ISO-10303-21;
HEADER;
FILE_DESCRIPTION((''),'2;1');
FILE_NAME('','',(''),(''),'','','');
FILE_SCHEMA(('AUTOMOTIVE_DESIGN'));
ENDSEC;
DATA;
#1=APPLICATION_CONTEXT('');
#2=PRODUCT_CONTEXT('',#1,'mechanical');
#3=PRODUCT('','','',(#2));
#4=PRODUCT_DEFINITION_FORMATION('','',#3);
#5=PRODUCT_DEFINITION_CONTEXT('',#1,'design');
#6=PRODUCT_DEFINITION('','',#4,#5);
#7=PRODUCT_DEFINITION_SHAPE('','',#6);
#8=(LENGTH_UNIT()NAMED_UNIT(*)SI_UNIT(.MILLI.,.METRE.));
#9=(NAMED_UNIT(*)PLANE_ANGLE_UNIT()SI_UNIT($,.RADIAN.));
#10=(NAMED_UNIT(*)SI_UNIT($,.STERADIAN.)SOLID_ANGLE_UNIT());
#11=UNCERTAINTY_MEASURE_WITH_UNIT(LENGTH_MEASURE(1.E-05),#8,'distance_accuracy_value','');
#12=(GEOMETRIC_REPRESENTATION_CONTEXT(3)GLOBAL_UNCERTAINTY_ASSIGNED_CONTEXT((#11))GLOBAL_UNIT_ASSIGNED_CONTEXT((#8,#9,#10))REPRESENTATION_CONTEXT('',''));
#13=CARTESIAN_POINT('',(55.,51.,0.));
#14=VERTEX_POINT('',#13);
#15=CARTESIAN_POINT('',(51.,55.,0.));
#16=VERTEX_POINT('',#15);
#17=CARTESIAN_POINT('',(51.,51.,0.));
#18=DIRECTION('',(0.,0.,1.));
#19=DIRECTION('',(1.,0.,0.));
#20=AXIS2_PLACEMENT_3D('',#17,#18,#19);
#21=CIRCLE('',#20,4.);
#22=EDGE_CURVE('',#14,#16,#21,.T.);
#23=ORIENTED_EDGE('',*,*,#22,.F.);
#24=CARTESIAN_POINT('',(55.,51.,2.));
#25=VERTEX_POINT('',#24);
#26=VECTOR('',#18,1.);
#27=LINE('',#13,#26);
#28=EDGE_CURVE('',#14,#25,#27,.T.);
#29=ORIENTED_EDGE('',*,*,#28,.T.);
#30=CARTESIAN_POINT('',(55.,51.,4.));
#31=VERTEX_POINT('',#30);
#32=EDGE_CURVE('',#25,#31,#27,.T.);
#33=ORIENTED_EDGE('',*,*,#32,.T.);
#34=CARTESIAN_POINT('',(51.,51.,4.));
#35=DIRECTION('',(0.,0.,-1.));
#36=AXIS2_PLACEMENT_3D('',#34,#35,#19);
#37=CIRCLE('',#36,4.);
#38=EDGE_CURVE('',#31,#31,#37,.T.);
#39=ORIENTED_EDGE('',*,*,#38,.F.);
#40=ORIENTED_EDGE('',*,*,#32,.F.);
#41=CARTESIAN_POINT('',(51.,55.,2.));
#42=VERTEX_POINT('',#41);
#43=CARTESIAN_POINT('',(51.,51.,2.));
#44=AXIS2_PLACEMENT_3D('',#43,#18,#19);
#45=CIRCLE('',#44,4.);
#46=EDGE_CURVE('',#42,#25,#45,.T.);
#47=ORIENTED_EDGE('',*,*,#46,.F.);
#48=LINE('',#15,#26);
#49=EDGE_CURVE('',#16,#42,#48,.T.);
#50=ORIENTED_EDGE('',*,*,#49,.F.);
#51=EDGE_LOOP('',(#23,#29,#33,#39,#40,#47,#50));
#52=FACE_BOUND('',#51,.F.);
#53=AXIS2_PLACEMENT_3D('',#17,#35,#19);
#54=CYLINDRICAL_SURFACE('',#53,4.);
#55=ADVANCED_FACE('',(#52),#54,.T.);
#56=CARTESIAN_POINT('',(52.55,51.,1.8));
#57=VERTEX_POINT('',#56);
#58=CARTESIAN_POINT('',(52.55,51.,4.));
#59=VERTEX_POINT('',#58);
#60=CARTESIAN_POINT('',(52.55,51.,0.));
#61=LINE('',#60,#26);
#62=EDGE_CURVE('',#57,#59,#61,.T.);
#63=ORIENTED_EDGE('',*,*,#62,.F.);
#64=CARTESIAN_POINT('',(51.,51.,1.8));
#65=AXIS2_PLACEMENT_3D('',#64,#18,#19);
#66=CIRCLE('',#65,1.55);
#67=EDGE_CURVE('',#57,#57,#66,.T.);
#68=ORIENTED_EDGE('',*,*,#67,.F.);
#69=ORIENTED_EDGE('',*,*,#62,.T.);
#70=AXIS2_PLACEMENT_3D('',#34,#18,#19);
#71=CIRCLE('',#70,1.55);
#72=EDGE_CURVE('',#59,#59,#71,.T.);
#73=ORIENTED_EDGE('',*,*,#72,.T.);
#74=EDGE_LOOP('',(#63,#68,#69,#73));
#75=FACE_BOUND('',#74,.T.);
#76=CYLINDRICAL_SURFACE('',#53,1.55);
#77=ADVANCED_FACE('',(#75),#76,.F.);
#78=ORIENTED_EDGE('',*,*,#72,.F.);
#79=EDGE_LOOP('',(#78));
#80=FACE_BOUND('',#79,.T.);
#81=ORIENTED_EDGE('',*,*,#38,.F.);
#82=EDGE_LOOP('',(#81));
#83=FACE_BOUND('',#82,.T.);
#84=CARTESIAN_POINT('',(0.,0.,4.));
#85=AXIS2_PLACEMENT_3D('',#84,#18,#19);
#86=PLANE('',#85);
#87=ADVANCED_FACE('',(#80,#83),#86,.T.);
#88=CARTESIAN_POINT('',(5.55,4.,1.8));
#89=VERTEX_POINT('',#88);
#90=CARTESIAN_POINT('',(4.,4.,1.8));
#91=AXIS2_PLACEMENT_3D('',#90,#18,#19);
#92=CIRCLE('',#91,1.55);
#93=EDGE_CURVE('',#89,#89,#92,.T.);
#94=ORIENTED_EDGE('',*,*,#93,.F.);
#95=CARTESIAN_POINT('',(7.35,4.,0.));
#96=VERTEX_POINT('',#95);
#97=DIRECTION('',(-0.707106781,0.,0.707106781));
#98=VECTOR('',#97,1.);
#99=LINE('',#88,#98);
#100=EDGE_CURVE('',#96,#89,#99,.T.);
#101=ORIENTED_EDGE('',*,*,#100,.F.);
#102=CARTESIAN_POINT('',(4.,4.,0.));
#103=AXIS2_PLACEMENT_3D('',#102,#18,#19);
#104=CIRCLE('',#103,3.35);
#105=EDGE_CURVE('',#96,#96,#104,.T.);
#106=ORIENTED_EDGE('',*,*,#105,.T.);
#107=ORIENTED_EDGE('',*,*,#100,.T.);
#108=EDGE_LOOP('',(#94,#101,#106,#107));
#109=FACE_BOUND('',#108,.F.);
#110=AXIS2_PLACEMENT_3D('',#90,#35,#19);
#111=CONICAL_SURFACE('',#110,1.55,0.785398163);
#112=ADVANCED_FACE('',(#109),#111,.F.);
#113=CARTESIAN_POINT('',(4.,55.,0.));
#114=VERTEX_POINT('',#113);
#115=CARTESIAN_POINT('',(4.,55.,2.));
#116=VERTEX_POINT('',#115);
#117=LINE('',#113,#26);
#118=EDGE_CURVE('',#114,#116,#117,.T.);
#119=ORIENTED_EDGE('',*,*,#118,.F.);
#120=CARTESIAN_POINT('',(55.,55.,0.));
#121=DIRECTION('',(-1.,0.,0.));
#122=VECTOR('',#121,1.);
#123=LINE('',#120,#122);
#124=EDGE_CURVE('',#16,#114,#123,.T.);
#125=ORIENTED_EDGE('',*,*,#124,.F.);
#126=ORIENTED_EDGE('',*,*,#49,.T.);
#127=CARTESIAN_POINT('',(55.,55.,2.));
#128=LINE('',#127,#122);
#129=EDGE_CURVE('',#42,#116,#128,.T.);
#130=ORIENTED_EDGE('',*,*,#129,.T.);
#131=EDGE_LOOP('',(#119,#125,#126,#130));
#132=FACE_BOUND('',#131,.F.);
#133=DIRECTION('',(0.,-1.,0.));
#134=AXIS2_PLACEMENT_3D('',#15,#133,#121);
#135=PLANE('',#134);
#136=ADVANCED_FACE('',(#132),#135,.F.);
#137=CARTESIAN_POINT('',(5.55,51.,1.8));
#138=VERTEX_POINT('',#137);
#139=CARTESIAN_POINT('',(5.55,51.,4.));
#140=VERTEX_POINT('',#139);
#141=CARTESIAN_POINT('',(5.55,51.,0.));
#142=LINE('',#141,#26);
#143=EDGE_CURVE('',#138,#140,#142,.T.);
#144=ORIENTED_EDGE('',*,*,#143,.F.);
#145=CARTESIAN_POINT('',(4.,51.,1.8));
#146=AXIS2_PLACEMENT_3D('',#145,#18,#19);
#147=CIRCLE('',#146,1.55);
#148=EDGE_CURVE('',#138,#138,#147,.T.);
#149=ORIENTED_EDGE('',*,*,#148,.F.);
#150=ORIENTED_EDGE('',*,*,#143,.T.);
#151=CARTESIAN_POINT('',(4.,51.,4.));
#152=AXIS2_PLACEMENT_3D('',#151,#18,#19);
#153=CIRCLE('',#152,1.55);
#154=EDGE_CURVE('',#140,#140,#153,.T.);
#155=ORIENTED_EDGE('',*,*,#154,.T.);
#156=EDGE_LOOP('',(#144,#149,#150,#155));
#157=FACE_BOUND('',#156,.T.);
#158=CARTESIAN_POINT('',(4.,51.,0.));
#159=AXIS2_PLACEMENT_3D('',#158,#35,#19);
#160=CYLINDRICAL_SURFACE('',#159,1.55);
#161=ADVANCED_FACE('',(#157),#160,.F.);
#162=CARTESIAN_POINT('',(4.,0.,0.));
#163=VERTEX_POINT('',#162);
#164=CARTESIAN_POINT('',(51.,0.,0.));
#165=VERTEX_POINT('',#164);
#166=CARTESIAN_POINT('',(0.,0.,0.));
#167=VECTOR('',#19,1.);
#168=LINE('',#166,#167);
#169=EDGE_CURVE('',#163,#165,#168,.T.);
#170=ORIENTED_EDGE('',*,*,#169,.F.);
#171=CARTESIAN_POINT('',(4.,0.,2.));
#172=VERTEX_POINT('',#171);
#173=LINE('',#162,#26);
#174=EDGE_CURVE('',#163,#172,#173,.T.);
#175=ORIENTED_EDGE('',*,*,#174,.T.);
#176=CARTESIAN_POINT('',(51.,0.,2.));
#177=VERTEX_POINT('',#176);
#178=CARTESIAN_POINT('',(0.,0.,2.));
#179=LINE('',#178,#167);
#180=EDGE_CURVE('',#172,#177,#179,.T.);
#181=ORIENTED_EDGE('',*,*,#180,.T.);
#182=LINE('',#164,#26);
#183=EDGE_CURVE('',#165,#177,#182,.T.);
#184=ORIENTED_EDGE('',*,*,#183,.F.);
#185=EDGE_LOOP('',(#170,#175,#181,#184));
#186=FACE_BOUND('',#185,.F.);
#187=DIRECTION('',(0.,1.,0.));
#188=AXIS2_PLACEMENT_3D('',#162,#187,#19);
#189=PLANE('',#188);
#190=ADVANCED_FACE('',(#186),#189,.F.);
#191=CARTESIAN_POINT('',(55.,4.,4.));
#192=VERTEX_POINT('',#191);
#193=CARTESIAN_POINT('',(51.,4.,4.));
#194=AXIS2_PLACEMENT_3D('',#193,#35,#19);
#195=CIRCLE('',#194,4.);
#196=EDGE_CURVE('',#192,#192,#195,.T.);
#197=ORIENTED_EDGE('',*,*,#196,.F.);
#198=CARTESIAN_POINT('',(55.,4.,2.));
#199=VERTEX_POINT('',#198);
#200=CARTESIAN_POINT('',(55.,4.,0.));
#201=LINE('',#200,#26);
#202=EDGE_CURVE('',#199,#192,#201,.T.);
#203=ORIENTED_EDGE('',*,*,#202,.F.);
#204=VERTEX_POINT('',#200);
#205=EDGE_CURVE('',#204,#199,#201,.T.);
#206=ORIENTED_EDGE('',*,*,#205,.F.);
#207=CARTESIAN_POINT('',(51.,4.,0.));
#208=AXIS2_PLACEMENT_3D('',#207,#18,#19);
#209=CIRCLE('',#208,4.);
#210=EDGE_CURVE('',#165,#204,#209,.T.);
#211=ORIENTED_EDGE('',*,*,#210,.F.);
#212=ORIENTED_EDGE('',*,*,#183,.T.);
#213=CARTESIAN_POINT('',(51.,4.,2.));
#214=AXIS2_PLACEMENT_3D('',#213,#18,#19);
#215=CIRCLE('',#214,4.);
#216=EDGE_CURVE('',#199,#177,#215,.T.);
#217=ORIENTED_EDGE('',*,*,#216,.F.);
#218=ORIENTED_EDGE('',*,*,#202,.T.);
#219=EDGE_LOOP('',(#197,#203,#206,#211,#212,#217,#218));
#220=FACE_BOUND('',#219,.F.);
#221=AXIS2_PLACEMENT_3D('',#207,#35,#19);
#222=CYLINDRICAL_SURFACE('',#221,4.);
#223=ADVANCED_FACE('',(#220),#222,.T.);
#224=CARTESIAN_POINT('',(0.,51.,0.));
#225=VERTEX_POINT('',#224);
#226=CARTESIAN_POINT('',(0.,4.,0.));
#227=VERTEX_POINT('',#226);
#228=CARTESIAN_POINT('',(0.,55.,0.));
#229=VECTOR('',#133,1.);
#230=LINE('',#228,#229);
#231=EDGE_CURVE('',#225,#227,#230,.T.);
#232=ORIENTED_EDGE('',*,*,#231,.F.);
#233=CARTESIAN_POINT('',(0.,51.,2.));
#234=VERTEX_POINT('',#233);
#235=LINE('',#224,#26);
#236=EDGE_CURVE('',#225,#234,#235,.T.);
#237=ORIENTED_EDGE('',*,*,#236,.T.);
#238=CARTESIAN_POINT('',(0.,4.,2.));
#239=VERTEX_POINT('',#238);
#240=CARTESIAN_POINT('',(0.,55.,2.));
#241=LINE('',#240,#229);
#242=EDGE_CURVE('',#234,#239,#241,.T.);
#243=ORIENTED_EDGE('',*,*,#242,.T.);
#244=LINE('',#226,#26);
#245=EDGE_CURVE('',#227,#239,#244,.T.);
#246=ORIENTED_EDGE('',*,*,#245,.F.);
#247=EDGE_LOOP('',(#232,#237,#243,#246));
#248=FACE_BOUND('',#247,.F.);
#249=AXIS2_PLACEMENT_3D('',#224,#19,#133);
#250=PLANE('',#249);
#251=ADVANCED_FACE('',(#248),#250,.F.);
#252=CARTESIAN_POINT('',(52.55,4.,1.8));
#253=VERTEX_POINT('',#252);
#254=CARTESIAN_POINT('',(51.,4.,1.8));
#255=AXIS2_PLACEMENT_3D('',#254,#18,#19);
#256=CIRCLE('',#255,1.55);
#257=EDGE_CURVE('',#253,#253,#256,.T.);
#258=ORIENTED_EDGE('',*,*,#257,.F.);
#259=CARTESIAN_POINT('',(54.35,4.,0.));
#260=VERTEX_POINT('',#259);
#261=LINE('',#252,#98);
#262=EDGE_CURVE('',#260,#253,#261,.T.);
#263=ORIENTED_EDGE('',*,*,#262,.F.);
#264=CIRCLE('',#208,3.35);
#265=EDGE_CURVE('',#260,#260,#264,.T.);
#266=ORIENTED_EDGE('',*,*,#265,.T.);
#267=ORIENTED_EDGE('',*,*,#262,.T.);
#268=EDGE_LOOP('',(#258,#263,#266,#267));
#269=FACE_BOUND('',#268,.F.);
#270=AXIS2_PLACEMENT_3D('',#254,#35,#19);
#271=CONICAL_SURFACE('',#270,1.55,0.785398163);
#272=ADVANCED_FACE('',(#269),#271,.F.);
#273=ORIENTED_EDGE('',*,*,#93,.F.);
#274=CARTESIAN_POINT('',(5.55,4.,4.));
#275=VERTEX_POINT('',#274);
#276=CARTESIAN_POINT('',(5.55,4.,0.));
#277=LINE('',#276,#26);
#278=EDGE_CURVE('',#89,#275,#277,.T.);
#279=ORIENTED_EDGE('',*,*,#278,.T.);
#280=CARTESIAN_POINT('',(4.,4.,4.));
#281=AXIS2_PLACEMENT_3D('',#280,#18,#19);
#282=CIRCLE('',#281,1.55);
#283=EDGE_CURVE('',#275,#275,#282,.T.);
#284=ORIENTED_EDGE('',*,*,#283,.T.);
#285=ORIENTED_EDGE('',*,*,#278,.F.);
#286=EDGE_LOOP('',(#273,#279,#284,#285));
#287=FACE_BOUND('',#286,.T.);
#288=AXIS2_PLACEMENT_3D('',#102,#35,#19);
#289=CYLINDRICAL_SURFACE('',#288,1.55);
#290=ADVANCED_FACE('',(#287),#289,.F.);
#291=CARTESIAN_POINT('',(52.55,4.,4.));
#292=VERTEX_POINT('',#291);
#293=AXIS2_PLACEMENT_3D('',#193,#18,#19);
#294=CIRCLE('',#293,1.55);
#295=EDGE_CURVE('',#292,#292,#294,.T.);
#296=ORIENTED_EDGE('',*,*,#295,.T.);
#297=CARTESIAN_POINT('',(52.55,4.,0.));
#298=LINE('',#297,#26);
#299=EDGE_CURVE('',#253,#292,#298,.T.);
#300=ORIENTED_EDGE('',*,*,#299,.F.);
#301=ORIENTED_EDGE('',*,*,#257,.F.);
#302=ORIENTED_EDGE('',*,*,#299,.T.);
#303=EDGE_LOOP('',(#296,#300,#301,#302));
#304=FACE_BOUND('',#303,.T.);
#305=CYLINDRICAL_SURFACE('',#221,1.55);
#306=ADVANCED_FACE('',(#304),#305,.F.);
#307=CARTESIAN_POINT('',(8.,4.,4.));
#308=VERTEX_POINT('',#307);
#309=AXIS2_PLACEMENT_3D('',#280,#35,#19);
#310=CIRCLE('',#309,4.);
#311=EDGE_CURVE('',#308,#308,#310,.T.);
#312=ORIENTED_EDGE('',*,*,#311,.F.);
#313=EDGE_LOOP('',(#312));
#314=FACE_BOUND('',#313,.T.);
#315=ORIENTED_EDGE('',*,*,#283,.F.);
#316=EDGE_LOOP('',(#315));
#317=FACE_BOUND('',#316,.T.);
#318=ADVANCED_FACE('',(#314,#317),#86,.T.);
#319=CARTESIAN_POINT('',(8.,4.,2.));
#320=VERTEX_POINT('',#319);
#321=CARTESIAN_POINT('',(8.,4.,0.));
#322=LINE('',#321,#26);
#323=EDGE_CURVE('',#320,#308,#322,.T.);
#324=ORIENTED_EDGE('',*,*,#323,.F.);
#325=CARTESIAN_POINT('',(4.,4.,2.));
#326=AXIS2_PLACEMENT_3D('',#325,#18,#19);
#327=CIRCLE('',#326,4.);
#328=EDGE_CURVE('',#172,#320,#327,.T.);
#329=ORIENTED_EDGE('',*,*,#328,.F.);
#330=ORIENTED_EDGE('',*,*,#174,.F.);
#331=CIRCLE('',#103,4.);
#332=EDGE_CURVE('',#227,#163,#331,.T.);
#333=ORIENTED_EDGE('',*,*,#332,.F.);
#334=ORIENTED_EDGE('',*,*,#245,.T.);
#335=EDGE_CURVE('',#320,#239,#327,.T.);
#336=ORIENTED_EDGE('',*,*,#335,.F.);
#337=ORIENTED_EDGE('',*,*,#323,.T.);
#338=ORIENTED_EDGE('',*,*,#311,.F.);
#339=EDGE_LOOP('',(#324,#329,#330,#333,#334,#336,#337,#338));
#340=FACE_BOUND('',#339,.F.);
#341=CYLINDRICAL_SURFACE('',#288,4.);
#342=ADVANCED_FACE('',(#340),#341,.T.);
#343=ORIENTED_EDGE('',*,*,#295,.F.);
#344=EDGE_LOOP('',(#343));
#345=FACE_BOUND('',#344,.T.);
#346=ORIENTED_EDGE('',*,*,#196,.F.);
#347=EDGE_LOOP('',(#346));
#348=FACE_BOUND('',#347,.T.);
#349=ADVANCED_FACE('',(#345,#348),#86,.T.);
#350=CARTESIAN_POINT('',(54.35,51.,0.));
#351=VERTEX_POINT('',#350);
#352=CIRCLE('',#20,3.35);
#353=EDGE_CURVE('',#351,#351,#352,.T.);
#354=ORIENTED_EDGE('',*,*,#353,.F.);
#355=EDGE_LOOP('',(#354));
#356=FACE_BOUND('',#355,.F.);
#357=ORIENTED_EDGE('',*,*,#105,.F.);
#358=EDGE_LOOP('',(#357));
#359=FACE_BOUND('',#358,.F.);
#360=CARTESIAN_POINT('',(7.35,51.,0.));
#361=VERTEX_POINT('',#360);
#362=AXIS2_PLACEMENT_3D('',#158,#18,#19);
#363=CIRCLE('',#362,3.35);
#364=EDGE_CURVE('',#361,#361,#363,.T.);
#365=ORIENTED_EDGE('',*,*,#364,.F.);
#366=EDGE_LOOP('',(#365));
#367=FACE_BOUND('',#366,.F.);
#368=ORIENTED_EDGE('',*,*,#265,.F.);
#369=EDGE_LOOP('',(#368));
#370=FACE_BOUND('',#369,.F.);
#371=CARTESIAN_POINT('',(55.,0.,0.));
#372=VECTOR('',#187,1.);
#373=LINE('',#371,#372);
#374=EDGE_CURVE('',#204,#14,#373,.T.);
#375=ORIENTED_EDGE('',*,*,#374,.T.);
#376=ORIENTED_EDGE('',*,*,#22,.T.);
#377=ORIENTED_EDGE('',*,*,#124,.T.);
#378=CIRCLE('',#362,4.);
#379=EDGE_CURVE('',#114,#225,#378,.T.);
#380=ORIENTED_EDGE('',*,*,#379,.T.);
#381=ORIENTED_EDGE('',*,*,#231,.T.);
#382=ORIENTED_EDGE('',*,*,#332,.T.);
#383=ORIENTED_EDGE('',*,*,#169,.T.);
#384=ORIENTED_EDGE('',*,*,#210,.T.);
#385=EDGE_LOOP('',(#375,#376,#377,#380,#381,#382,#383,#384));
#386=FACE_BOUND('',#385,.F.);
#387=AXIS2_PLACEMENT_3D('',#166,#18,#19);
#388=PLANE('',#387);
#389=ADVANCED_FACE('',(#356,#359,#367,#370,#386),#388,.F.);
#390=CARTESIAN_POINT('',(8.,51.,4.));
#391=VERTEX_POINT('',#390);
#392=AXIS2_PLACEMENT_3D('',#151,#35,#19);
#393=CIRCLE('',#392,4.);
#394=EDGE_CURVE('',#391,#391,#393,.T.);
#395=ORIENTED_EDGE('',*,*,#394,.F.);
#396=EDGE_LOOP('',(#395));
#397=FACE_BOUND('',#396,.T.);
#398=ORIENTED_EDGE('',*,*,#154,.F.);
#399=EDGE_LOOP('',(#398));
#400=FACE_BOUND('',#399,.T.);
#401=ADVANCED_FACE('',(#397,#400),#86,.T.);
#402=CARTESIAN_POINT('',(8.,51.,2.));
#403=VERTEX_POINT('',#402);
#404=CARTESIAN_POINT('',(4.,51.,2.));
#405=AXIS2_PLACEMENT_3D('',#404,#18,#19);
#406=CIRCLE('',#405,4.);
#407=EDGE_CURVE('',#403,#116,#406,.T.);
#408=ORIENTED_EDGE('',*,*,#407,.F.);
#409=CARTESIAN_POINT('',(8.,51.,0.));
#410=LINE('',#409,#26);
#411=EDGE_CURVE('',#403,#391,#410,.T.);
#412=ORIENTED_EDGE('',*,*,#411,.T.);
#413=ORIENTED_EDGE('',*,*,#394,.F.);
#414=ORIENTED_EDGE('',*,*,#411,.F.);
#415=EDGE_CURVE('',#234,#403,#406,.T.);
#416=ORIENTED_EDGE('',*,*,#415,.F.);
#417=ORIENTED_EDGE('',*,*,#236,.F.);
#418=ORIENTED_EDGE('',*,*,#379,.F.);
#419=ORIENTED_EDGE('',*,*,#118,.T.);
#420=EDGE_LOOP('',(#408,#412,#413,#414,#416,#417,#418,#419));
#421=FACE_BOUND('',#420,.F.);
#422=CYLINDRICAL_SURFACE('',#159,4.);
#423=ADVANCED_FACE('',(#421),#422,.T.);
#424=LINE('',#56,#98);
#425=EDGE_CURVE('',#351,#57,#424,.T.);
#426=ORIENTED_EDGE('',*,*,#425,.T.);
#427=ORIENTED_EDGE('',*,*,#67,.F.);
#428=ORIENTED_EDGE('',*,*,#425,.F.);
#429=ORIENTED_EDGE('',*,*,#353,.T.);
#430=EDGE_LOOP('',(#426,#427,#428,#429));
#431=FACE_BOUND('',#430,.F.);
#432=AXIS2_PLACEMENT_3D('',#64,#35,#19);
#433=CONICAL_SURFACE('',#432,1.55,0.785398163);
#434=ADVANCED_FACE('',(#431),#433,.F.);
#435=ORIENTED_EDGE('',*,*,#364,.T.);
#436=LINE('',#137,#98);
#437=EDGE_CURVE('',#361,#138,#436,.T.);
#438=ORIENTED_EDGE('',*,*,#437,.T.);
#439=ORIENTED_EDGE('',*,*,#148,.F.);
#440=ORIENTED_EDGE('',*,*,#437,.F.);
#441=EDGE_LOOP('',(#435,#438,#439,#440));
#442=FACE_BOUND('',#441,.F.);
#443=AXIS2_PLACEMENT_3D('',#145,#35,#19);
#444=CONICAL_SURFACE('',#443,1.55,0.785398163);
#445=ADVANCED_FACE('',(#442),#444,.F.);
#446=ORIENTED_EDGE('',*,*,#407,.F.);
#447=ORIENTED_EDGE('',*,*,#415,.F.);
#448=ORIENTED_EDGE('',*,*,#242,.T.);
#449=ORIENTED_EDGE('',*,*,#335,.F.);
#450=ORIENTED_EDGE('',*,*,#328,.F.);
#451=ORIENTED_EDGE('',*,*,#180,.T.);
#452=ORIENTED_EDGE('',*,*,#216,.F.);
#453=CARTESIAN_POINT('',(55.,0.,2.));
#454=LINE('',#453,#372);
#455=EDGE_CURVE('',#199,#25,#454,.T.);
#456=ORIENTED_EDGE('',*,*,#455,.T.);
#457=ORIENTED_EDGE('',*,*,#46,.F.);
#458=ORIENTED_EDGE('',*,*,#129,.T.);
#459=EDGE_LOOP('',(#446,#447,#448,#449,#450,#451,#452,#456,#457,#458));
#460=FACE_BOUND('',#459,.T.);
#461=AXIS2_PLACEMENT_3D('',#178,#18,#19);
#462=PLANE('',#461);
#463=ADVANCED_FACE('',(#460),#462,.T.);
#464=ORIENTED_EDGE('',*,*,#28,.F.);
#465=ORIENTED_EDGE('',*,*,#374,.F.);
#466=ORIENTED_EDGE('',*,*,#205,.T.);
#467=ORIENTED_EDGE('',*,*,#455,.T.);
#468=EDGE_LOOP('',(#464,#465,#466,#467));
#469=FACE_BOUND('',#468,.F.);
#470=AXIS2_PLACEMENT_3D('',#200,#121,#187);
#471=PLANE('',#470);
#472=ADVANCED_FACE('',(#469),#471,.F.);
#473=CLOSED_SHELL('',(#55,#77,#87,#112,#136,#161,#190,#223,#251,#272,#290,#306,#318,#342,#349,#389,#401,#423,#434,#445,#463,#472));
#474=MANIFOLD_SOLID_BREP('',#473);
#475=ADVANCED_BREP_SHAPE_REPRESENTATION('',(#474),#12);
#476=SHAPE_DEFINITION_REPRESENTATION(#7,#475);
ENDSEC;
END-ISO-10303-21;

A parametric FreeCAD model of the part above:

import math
import FreeCAD as App
import Part
import Sketcher

V = App.Vector


def edges_at(feature, points):
    """Names of the edges that pass closest to the given points."""
    edges = feature.Shape.Edges
    near = lambda p: min(range(len(edges)), key=lambda i: edges[i].distToShape(Part.Vertex(*p))[0])
    return sorted({f"Edge{near(p) + 1}" for p in points})

doc = App.newDocument("Part")
body = doc.addObject("PartDesign::Body", "Body")

sketch1 = body.newObject("Sketcher::SketchObject", "Sketch")
sketch1.AttachmentSupport = (doc.getObject("XY_Plane"), [""])
sketch1.MapMode = "FlatFace"
sketch1.addGeometry([
    Part.ArcOfCircle(Part.Circle(V(4, 4, 0), V(0, 0, 1), 4), math.radians(-90), math.radians(180)),
    Part.LineSegment(V(4, 0, 0), V(51, 0, 0)),
    Part.ArcOfCircle(Part.Circle(V(51, 4, 0), V(0, 0, 1), 4), math.radians(0), math.radians(270)),
    Part.LineSegment(V(55, 4, 0), V(55, 51, 0)),
    Part.ArcOfCircle(Part.Circle(V(51, 51, 0), V(0, 0, 1), 4), math.radians(90), math.radians(360)),
    Part.LineSegment(V(51, 55, 0), V(4, 55, 0)),
    Part.ArcOfCircle(Part.Circle(V(4, 51, 0), V(0, 0, 1), 4), math.radians(180), math.radians(450)),
    Part.LineSegment(V(0, 51, 0), V(0, 4, 0)),
], False)
sketch1.addConstraint([
    Sketcher.Constraint("Tangent", 0, 1, 1, 1),
    Sketcher.Constraint("Tangent", 1, 2, 2, 2),
    Sketcher.Constraint("Tangent", 2, 1, 3, 1),
    Sketcher.Constraint("Tangent", 3, 2, 4, 2),
    Sketcher.Constraint("Tangent", 4, 1, 5, 1),
    Sketcher.Constraint("Tangent", 5, 2, 6, 2),
    Sketcher.Constraint("Tangent", 6, 1, 7, 1),
    Sketcher.Constraint("Tangent", 7, 2, 0, 2),
    Sketcher.Constraint("Horizontal", 1),
    Sketcher.Constraint("Vertical", 3),
    Sketcher.Constraint("Horizontal", 5),
    Sketcher.Constraint("Vertical", 7),
    Sketcher.Constraint("Equal", 0, 2),
    Sketcher.Constraint("Equal", 2, 4),
    Sketcher.Constraint("Equal", 4, 6),
    Sketcher.Constraint("PointOnObject", 0, 1, -1),
    Sketcher.Constraint("PointOnObject", 6, 1, -2),
    Sketcher.Constraint("Equal", 5, 3),
    Sketcher.Constraint("Radius", 0, 4.0),
    Sketcher.Constraint("DistanceX", -1, 1, 2, 1, 55.0),
])
pad1 = body.newObject("PartDesign::Pad", "Pad")
pad1.Profile = sketch1
pad1.Length = 2

sketch2 = body.newObject("Sketcher::SketchObject", "Sketch001")
sketch2.AttachmentSupport = (doc.getObject("XY_Plane"), [""])
sketch2.MapMode = "FlatFace"
sketch2.addGeometry([
    Part.Circle(V(4, 4, 0), V(0, 0, 1), 4),
    Part.Circle(V(4, 4, 0), V(0, 0, 1), 1.6),
    Part.Circle(V(51, 4, 0), V(0, 0, 1), 4),
    Part.Circle(V(51, 4, 0), V(0, 0, 1), 1.6),
    Part.Circle(V(4, 51, 0), V(0, 0, 1), 4),
    Part.Circle(V(4, 51, 0), V(0, 0, 1), 1.6),
    Part.Circle(V(51, 51, 0), V(0, 0, 1), 4),
    Part.Circle(V(51, 51, 0), V(0, 0, 1), 1.6),
], False)
sketch2.addConstraint([
    Sketcher.Constraint("Coincident", 1, 3, 0, 3),
    Sketcher.Constraint("Coincident", 3, 3, 2, 3),
    Sketcher.Constraint("Coincident", 5, 3, 4, 3),
    Sketcher.Constraint("Coincident", 7, 3, 6, 3),
    Sketcher.Constraint("Equal", 0, 2),
    Sketcher.Constraint("Equal", 1, 3),
    Sketcher.Constraint("Equal", 2, 4),
    Sketcher.Constraint("Equal", 3, 5),
    Sketcher.Constraint("Equal", 4, 6),
    Sketcher.Constraint("Equal", 5, 7),
    Sketcher.Constraint("Horizontal", 1, 3, 2, 3),
    Sketcher.Constraint("Horizontal", 5, 3, 6, 3),
    Sketcher.Constraint("Vertical", 1, 3, 4, 3),
    Sketcher.Constraint("Vertical", 3, 3, 6, 3),
    Sketcher.Constraint("Diameter", 0, 8.0),
    Sketcher.Constraint("Diameter", 1, 3.1),
    Sketcher.Constraint("DistanceX", -1, 1, 0, 3, 4.0),
    Sketcher.Constraint("DistanceY", -1, 1, 0, 3, 4.0),
    Sketcher.Constraint("DistanceX", -1, 1, 2, 3, 51.0),
    Sketcher.Constraint("DistanceY", -1, 1, 4, 3, 51.0),
])
pad2 = body.newObject("PartDesign::Pad", "Pad001")
pad2.Profile = sketch2
pad2.Length = 4
doc.recompute()

chamfer = body.newObject("PartDesign::Chamfer", "Chamfer")
chamfer.Base = (pad2, edges_at(pad2, [
    (2.555, 4.561, 0),
    (49.555, 4.561, 0),
    (49.555, 51.56, 0),
    (2.555, 51.56, 0),
]))
chamfer.Size = 1.8

doc.recompute()
